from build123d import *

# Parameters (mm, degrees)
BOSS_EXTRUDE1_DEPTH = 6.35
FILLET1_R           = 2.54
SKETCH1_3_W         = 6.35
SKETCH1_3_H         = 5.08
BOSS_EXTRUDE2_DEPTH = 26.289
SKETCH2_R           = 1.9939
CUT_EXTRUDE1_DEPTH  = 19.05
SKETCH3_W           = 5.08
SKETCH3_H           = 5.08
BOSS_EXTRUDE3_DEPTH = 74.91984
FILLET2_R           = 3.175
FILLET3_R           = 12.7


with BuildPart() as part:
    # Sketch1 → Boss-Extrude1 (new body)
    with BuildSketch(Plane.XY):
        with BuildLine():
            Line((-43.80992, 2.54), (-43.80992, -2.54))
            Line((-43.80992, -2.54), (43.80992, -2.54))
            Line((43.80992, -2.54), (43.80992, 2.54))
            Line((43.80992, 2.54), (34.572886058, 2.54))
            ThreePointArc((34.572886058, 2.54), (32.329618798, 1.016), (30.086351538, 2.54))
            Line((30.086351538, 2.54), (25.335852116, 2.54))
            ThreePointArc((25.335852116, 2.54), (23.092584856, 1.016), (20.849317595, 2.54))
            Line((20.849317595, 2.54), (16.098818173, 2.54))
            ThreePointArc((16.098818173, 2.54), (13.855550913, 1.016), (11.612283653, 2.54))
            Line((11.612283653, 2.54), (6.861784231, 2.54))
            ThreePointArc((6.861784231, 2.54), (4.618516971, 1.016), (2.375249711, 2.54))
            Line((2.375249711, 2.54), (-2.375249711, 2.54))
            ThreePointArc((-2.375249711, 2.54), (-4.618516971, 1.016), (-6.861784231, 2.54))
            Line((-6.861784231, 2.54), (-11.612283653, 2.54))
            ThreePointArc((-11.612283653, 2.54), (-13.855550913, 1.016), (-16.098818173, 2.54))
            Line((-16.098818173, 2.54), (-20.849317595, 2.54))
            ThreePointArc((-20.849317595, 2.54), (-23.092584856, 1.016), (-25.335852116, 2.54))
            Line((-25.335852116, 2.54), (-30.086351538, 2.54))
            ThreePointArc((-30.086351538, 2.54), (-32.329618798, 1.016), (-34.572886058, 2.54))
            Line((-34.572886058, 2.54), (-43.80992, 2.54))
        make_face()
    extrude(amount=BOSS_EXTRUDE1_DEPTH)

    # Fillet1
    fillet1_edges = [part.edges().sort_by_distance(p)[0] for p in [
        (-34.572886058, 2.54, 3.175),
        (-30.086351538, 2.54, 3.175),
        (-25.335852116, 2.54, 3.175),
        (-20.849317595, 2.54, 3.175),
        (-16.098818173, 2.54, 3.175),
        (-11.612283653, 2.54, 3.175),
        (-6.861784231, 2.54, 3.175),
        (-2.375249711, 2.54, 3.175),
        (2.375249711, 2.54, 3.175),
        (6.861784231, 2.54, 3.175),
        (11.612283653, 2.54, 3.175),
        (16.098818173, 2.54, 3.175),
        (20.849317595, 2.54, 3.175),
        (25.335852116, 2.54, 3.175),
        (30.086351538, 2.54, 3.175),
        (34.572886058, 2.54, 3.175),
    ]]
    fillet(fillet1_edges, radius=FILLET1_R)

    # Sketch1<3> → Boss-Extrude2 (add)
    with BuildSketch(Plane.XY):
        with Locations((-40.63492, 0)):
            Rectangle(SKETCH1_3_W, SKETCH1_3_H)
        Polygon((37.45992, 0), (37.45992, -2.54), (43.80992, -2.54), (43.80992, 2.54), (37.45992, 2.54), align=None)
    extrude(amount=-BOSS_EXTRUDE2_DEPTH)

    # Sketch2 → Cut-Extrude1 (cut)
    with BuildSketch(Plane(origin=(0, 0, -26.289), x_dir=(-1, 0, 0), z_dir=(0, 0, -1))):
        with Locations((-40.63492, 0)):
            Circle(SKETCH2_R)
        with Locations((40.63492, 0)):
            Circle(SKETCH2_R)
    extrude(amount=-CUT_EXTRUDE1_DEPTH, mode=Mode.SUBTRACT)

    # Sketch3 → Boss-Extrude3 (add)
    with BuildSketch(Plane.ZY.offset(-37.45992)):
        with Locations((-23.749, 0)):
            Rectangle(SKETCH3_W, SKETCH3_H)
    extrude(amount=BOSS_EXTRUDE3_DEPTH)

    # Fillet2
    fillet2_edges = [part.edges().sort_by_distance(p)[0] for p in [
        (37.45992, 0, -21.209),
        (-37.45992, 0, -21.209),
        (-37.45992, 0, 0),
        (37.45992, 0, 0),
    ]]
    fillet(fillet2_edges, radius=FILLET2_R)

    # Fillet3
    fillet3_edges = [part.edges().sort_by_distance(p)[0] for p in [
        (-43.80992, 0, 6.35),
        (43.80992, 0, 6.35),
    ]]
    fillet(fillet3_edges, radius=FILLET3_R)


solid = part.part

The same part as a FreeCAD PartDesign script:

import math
import FreeCAD as App
import Part
import Sketcher

V = App.Vector
Q = App.Units.Quantity


def edges_at(feature, points):
    """Names of the edges that pass closest to the given points."""
    edges = feature.Shape.Edges
    near = lambda p: min(range(len(edges)), key=lambda i: edges[i].distToShape(Part.Vertex(*p))[0])
    return sorted({f"Edge{near(p) + 1}" for p in points})


def add_polygon(sketch, points):
    """Adds a closed chain of lines whose ends are joined by coincident constraints."""
    first, n = sketch.GeometryCount, len(points)
    for a, b in zip(points, points[1:] + points[:1]):
        sketch.addGeometry(Part.LineSegment(App.Vector(*a, 0), App.Vector(*b, 0)), False)
    for i in range(n):
        sketch.addConstraint(Sketcher.Constraint("Coincident", first + i, 2, first + (i + 1) % n, 1))

doc = App.newDocument("Part")
body = doc.addObject("PartDesign::Body", "Body")

# Sketch on XY plane
sketch1 = body.newObject("Sketcher::SketchObject", "Sketch")
sketch1.AttachmentSupport = (doc.getObject("XY_Plane"), [""])
sketch1.MapMode = "FlatFace"
sketch1.addGeometry([
    Part.LineSegment(V(-43.8, 2.5, 0), V(-43.8, -2.5, 0)),  # 0
    Part.LineSegment(V(-43.8, -2.5, 0), V(43.8, -2.5, 0)),  # 1
    Part.LineSegment(V(43.8, -2.5, 0), V(43.8, 2.5, 0)),  # 2
    Part.LineSegment(V(43.8, 2.5, 0), V(34.6, 2.5, 0)),  # 3
    Part.ArcOfCircle(Part.Circle(V(32.3, 3.4, 0), V(0, 0, 1), 2.4), math.radians(-158), math.radians(-22)),  # 4
    Part.LineSegment(V(30.1, 2.5, 0), V(25.3, 2.5, 0)),  # 5
    Part.ArcOfCircle(Part.Circle(V(23.1, 3.4, 0), V(0, 0, 1), 2.4), math.radians(-158), math.radians(-22)),  # 6
    Part.LineSegment(V(20.8, 2.5, 0), V(16.1, 2.5, 0)),  # 7
    Part.ArcOfCircle(Part.Circle(V(13.9, 3.4, 0), V(0, 0, 1), 2.4), math.radians(-158), math.radians(-22)),  # 8
    Part.LineSegment(V(11.6, 2.5, 0), V(6.9, 2.5, 0)),  # 9
    Part.ArcOfCircle(Part.Circle(V(4.6, 3.4, 0), V(0, 0, 1), 2.4), math.radians(-158), math.radians(-22)),  # 10
    Part.LineSegment(V(2.4, 2.5, 0), V(-2.4, 2.5, 0)),  # 11
    Part.ArcOfCircle(Part.Circle(V(-4.6, 3.4, 0), V(0, 0, 1), 2.4), math.radians(-158), math.radians(-22)),  # 12
    Part.LineSegment(V(-6.9, 2.5, 0), V(-11.6, 2.5, 0)),  # 13
    Part.ArcOfCircle(Part.Circle(V(-13.9, 3.4, 0), V(0, 0, 1), 2.4), math.radians(-158), math.radians(-22)),  # 14
    Part.LineSegment(V(-16.1, 2.5, 0), V(-20.8, 2.5, 0)),  # 15
    Part.ArcOfCircle(Part.Circle(V(-23.1, 3.4, 0), V(0, 0, 1), 2.4), math.radians(-158), math.radians(-22)),  # 16
    Part.LineSegment(V(-25.3, 2.5, 0), V(-30.1, 2.5, 0)),  # 17
    Part.ArcOfCircle(Part.Circle(V(-32.3, 3.4, 0), V(0, 0, 1), 2.4), math.radians(-158), math.radians(-22)),  # 18
    Part.LineSegment(V(-34.6, 2.5, 0), V(-43.8, 2.5, 0)),  # 19
], False)
sketch1.addConstraint([
    Sketcher.Constraint("Coincident", 0, 2, 1, 1),
    Sketcher.Constraint("Coincident", 1, 2, 2, 1),
    Sketcher.Constraint("Coincident", 2, 2, 3, 1),
    Sketcher.Constraint("Coincident", 3, 2, 4, 2),
    Sketcher.Constraint("Coincident", 4, 1, 5, 1),
    Sketcher.Constraint("Coincident", 5, 2, 6, 2),
    Sketcher.Constraint("Coincident", 6, 1, 7, 1),
    Sketcher.Constraint("Coincident", 7, 2, 8, 2),
    Sketcher.Constraint("Coincident", 8, 1, 9, 1),
    Sketcher.Constraint("Coincident", 9, 2, 10, 2),
    Sketcher.Constraint("Coincident", 10, 1, 11, 1),
    Sketcher.Constraint("Coincident", 11, 2, 12, 2),
    Sketcher.Constraint("Coincident", 12, 1, 13, 1),
    Sketcher.Constraint("Coincident", 13, 2, 14, 2),
    Sketcher.Constraint("Coincident", 14, 1, 15, 1),
    Sketcher.Constraint("Coincident", 15, 2, 16, 2),
    Sketcher.Constraint("Coincident", 16, 1, 17, 1),
    Sketcher.Constraint("Coincident", 17, 2, 18, 2),
    Sketcher.Constraint("Coincident", 18, 1, 19, 1),
    Sketcher.Constraint("Coincident", 19, 2, 0, 1),
    Sketcher.Constraint("Vertical", 0),
    Sketcher.Constraint("Horizontal", 1),
    Sketcher.Constraint("Vertical", 2),
    Sketcher.Constraint("Horizontal", 3),
    Sketcher.Constraint("Horizontal", 5),
    Sketcher.Constraint("Horizontal", 7),
    Sketcher.Constraint("Horizontal", 9),
    Sketcher.Constraint("Horizontal", 11),
    Sketcher.Constraint("Horizontal", 13),
    Sketcher.Constraint("Horizontal", 15),
    Sketcher.Constraint("Horizontal", 17),
    Sketcher.Constraint("Horizontal", 19),
    Sketcher.Constraint("Equal", 4, 6),
    Sketcher.Constraint("Equal", 6, 8),
    Sketcher.Constraint("Equal", 8, 10),
    Sketcher.Constraint("Equal", 10, 12),
    Sketcher.Constraint("Equal", 12, 14),
    Sketcher.Constraint("Equal", 14, 16),
    Sketcher.Constraint("Equal", 16, 18),
    Sketcher.Constraint("Symmetric", 0, 2, 2, 2, -1, 1),
    Sketcher.Constraint("Symmetric", 10, 3, 12, 3, -2),
    Sketcher.Constraint("Symmetric", 8, 3, 14, 3, -2),
    Sketcher.Constraint("Symmetric", 6, 3, 16, 3, -2),
    Sketcher.Constraint("Symmetric", 4, 3, 18, 3, -2),
    Sketcher.Constraint("Horizontal", 4, 3, 6, 3),
    Sketcher.Constraint("Horizontal", 6, 3, 8, 3),
    Sketcher.Constraint("Horizontal", 8, 3, 10, 3),
    Sketcher.Constraint("Horizontal", 3, 2, 4, 1),
    Sketcher.Constraint("Horizontal", 5, 2, 6, 1),
    Sketcher.Constraint("Horizontal", 7, 2, 8, 1),
    Sketcher.Constraint("Horizontal", 9, 2, 10, 1),
    Sketcher.Constraint("Horizontal", 11, 2, 12, 1),
    Sketcher.Constraint("Horizontal", 13, 2, 14, 1),
    Sketcher.Constraint("Horizontal", 15, 2, 16, 1),
    Sketcher.Constraint("Horizontal", 17, 2, 18, 1),
    Sketcher.Constraint("Equal", 5, 7),
    Sketcher.Constraint("Equal", 7, 9),
    Sketcher.Constraint("Equal", 9, 11),
    Sketcher.Constraint("DistanceY", 0, 2, 0, 1, Q("0.2 in")),
    Sketcher.Constraint("Radius", 4, Q("0.095 in")),
    Sketcher.Constraint("DistanceX", 1, 1, 1, 2, Q("3.4496 in")),
    Sketcher.Constraint("DistanceY", -1, 1, 4, 3, Q("0.135 in")),
    Sketcher.Constraint("DistanceX", 5, 2, 5, 1, 4.750499),
])
pad1 = body.newObject("PartDesign::Pad", "Pad")
pad1.Profile = sketch1
pad1.Length = Q("0.25 in")
doc.recompute()

fillet = body.newObject("PartDesign::Fillet", "Fillet")
fillet.Base = (pad1, edges_at(pad1, [
    (-34.573, 2.54, 3.175),
    (-30.086, 2.54, 3.175),
    (-25.336, 2.54, 3.175),
    (-20.849, 2.54, 3.175),
    (-16.099, 2.54, 3.175),
    (-11.612, 2.54, 3.175),
    (-6.862, 2.54, 3.175),
    (-2.375, 2.54, 3.175),
    (2.375, 2.54, 3.175),
    (6.862, 2.54, 3.175),
    (11.612, 2.54, 3.175),
    (16.099, 2.54, 3.175),
    (20.849, 2.54, 3.175),
    (25.336, 2.54, 3.175),
    (30.086, 2.54, 3.175),
    (34.573, 2.54, 3.175),
]))
fillet.Radius = Q("0.1 in")

# Sketch on XY plane
sketch2 = body.newObject("Sketcher::SketchObject", "Sketch001")
sketch2.AttachmentSupport = (doc.getObject("XY_Plane"), [""])
sketch2.MapMode = "FlatFace"
add_polygon(sketch2, [(-44, 3), (-44, -3), (-37, -3), (-37, 3)])  # lines 0-3
add_polygon(sketch2, [(37, -3), (44, -3), (44, 3), (37, 3)])  # lines 4-7
sketch2.addConstraint([
    Sketcher.Constraint("Vertical", 0),
    Sketcher.Constraint("Horizontal", 1),
    Sketcher.Constraint("Vertical", 2),
    Sketcher.Constraint("Horizontal", 3),
    Sketcher.Constraint("Horizontal", 4),
    Sketcher.Constraint("Vertical", 5),
    Sketcher.Constraint("Horizontal", 6),
    Sketcher.Constraint("Vertical", 7),
    Sketcher.Constraint("Symmetric", 3, 2, 4, 2, -1, 1),
    Sketcher.Constraint("Symmetric", 1, 2, 6, 2, -1, 1),
    Sketcher.Constraint("Horizontal", 1, 2, 4, 2),
    Sketcher.Constraint("DistanceY", 0, 2, 0, 1, Q("0.2 in")),
    Sketcher.Constraint("DistanceX", 1, 1, 1, 2, Q("0.25 in")),
    Sketcher.Constraint("DistanceX", 0, 2, -1, 1, Q("1.7248 in")),
])
pad2 = body.newObject("PartDesign::Pad", "Pad001")
pad2.Profile = sketch2
pad2.Length = Q("1.035 in")
pad2.Reversed = True

# Sketch on XY plane
sketch3 = body.newObject("Sketcher::SketchObject", "Sketch002")
sketch3.AttachmentSupport = (doc.getObject("XY_Plane"), [""])
sketch3.MapMode = "FlatFace"
sketch3.AttachmentOffset = App.Placement(V(0, 0, -1.035 * 25.4), App.Rotation())
sketch3.addGeometry([
    Part.Circle(V(40.6, 0, 0), V(0, 0, 1), 2),
    Part.Circle(V(-40.6, 0, 0), V(0, 0, 1), 2),
], False)
sketch3.addConstraint([
    Sketcher.Constraint("Equal", 0, 1),
    Sketcher.Constraint("Symmetric", 0, 3, 1, 3, -1, 1),
    Sketcher.Constraint("PointOnObject", 0, 3, -1),
    Sketcher.Constraint("Diameter", 0, Q("0.157 in")),
    Sketcher.Constraint("DistanceX", -1, 1, 0, 3, Q("1.5998 in")),
])
pocket1 = body.newObject("PartDesign::Pocket", "Pocket")
pocket1.Profile = sketch3
pocket1.Length = Q("0.75 in")
pocket1.Reversed = True

# Sketch on YZ plane
sketch4 = body.newObject("Sketcher::SketchObject", "Sketch003")
sketch4.AttachmentSupport = (doc.getObject("YZ_Plane"), [""])
sketch4.MapMode = "FlatFace"
sketch4.AttachmentOffset = App.Placement(V(0, 0, 1.4748 * 25.4), App.Rotation())
add_polygon(sketch4, [(3, -26), (-3, -26), (-3, -21), (3, -21)])  # lines 0-3
sketch4.addConstraint([
    Sketcher.Constraint("Horizontal", 0),
    Sketcher.Constraint("Vertical", 1),
    Sketcher.Constraint("Horizontal", 2),
    Sketcher.Constraint("Vertical", 3),
    Sketcher.Constraint("Equal", 2, 1),
    Sketcher.Constraint("DistanceX", 0, 2, 0, 1, Q("0.2 in")),
    Sketcher.Constraint("DistanceX", 0, 2, -1, 1, Q("0.1 in")),
    Sketcher.Constraint("DistanceY", 0, 2, -1, 1, Q("1.035 in")),
])
pad3 = body.newObject("PartDesign::Pad", "Pad002")
pad3.Profile = sketch4
pad3.Length = Q("2.9496 in")
pad3.Reversed = True
doc.recompute()

fillet2 = body.newObject("PartDesign::Fillet", "Fillet001")
fillet2.Base = (pad3, edges_at(pad3, [
    (37.46, 0, -21.209),
    (-37.46, 0, -21.209),
    (-37.46, 0, 0),
    (37.46, 0, 0),
]))
fillet2.Radius = Q("0.125 in")
doc.recompute()

fillet3 = body.newObject("PartDesign::Fillet", "Fillet002")
fillet3.Base = (fillet2, edges_at(fillet2, [(-43.81, 0, 6.35), (43.81, 0, 6.35)]))
fillet3.Radius = Q("0.5 in")

doc.recompute()
